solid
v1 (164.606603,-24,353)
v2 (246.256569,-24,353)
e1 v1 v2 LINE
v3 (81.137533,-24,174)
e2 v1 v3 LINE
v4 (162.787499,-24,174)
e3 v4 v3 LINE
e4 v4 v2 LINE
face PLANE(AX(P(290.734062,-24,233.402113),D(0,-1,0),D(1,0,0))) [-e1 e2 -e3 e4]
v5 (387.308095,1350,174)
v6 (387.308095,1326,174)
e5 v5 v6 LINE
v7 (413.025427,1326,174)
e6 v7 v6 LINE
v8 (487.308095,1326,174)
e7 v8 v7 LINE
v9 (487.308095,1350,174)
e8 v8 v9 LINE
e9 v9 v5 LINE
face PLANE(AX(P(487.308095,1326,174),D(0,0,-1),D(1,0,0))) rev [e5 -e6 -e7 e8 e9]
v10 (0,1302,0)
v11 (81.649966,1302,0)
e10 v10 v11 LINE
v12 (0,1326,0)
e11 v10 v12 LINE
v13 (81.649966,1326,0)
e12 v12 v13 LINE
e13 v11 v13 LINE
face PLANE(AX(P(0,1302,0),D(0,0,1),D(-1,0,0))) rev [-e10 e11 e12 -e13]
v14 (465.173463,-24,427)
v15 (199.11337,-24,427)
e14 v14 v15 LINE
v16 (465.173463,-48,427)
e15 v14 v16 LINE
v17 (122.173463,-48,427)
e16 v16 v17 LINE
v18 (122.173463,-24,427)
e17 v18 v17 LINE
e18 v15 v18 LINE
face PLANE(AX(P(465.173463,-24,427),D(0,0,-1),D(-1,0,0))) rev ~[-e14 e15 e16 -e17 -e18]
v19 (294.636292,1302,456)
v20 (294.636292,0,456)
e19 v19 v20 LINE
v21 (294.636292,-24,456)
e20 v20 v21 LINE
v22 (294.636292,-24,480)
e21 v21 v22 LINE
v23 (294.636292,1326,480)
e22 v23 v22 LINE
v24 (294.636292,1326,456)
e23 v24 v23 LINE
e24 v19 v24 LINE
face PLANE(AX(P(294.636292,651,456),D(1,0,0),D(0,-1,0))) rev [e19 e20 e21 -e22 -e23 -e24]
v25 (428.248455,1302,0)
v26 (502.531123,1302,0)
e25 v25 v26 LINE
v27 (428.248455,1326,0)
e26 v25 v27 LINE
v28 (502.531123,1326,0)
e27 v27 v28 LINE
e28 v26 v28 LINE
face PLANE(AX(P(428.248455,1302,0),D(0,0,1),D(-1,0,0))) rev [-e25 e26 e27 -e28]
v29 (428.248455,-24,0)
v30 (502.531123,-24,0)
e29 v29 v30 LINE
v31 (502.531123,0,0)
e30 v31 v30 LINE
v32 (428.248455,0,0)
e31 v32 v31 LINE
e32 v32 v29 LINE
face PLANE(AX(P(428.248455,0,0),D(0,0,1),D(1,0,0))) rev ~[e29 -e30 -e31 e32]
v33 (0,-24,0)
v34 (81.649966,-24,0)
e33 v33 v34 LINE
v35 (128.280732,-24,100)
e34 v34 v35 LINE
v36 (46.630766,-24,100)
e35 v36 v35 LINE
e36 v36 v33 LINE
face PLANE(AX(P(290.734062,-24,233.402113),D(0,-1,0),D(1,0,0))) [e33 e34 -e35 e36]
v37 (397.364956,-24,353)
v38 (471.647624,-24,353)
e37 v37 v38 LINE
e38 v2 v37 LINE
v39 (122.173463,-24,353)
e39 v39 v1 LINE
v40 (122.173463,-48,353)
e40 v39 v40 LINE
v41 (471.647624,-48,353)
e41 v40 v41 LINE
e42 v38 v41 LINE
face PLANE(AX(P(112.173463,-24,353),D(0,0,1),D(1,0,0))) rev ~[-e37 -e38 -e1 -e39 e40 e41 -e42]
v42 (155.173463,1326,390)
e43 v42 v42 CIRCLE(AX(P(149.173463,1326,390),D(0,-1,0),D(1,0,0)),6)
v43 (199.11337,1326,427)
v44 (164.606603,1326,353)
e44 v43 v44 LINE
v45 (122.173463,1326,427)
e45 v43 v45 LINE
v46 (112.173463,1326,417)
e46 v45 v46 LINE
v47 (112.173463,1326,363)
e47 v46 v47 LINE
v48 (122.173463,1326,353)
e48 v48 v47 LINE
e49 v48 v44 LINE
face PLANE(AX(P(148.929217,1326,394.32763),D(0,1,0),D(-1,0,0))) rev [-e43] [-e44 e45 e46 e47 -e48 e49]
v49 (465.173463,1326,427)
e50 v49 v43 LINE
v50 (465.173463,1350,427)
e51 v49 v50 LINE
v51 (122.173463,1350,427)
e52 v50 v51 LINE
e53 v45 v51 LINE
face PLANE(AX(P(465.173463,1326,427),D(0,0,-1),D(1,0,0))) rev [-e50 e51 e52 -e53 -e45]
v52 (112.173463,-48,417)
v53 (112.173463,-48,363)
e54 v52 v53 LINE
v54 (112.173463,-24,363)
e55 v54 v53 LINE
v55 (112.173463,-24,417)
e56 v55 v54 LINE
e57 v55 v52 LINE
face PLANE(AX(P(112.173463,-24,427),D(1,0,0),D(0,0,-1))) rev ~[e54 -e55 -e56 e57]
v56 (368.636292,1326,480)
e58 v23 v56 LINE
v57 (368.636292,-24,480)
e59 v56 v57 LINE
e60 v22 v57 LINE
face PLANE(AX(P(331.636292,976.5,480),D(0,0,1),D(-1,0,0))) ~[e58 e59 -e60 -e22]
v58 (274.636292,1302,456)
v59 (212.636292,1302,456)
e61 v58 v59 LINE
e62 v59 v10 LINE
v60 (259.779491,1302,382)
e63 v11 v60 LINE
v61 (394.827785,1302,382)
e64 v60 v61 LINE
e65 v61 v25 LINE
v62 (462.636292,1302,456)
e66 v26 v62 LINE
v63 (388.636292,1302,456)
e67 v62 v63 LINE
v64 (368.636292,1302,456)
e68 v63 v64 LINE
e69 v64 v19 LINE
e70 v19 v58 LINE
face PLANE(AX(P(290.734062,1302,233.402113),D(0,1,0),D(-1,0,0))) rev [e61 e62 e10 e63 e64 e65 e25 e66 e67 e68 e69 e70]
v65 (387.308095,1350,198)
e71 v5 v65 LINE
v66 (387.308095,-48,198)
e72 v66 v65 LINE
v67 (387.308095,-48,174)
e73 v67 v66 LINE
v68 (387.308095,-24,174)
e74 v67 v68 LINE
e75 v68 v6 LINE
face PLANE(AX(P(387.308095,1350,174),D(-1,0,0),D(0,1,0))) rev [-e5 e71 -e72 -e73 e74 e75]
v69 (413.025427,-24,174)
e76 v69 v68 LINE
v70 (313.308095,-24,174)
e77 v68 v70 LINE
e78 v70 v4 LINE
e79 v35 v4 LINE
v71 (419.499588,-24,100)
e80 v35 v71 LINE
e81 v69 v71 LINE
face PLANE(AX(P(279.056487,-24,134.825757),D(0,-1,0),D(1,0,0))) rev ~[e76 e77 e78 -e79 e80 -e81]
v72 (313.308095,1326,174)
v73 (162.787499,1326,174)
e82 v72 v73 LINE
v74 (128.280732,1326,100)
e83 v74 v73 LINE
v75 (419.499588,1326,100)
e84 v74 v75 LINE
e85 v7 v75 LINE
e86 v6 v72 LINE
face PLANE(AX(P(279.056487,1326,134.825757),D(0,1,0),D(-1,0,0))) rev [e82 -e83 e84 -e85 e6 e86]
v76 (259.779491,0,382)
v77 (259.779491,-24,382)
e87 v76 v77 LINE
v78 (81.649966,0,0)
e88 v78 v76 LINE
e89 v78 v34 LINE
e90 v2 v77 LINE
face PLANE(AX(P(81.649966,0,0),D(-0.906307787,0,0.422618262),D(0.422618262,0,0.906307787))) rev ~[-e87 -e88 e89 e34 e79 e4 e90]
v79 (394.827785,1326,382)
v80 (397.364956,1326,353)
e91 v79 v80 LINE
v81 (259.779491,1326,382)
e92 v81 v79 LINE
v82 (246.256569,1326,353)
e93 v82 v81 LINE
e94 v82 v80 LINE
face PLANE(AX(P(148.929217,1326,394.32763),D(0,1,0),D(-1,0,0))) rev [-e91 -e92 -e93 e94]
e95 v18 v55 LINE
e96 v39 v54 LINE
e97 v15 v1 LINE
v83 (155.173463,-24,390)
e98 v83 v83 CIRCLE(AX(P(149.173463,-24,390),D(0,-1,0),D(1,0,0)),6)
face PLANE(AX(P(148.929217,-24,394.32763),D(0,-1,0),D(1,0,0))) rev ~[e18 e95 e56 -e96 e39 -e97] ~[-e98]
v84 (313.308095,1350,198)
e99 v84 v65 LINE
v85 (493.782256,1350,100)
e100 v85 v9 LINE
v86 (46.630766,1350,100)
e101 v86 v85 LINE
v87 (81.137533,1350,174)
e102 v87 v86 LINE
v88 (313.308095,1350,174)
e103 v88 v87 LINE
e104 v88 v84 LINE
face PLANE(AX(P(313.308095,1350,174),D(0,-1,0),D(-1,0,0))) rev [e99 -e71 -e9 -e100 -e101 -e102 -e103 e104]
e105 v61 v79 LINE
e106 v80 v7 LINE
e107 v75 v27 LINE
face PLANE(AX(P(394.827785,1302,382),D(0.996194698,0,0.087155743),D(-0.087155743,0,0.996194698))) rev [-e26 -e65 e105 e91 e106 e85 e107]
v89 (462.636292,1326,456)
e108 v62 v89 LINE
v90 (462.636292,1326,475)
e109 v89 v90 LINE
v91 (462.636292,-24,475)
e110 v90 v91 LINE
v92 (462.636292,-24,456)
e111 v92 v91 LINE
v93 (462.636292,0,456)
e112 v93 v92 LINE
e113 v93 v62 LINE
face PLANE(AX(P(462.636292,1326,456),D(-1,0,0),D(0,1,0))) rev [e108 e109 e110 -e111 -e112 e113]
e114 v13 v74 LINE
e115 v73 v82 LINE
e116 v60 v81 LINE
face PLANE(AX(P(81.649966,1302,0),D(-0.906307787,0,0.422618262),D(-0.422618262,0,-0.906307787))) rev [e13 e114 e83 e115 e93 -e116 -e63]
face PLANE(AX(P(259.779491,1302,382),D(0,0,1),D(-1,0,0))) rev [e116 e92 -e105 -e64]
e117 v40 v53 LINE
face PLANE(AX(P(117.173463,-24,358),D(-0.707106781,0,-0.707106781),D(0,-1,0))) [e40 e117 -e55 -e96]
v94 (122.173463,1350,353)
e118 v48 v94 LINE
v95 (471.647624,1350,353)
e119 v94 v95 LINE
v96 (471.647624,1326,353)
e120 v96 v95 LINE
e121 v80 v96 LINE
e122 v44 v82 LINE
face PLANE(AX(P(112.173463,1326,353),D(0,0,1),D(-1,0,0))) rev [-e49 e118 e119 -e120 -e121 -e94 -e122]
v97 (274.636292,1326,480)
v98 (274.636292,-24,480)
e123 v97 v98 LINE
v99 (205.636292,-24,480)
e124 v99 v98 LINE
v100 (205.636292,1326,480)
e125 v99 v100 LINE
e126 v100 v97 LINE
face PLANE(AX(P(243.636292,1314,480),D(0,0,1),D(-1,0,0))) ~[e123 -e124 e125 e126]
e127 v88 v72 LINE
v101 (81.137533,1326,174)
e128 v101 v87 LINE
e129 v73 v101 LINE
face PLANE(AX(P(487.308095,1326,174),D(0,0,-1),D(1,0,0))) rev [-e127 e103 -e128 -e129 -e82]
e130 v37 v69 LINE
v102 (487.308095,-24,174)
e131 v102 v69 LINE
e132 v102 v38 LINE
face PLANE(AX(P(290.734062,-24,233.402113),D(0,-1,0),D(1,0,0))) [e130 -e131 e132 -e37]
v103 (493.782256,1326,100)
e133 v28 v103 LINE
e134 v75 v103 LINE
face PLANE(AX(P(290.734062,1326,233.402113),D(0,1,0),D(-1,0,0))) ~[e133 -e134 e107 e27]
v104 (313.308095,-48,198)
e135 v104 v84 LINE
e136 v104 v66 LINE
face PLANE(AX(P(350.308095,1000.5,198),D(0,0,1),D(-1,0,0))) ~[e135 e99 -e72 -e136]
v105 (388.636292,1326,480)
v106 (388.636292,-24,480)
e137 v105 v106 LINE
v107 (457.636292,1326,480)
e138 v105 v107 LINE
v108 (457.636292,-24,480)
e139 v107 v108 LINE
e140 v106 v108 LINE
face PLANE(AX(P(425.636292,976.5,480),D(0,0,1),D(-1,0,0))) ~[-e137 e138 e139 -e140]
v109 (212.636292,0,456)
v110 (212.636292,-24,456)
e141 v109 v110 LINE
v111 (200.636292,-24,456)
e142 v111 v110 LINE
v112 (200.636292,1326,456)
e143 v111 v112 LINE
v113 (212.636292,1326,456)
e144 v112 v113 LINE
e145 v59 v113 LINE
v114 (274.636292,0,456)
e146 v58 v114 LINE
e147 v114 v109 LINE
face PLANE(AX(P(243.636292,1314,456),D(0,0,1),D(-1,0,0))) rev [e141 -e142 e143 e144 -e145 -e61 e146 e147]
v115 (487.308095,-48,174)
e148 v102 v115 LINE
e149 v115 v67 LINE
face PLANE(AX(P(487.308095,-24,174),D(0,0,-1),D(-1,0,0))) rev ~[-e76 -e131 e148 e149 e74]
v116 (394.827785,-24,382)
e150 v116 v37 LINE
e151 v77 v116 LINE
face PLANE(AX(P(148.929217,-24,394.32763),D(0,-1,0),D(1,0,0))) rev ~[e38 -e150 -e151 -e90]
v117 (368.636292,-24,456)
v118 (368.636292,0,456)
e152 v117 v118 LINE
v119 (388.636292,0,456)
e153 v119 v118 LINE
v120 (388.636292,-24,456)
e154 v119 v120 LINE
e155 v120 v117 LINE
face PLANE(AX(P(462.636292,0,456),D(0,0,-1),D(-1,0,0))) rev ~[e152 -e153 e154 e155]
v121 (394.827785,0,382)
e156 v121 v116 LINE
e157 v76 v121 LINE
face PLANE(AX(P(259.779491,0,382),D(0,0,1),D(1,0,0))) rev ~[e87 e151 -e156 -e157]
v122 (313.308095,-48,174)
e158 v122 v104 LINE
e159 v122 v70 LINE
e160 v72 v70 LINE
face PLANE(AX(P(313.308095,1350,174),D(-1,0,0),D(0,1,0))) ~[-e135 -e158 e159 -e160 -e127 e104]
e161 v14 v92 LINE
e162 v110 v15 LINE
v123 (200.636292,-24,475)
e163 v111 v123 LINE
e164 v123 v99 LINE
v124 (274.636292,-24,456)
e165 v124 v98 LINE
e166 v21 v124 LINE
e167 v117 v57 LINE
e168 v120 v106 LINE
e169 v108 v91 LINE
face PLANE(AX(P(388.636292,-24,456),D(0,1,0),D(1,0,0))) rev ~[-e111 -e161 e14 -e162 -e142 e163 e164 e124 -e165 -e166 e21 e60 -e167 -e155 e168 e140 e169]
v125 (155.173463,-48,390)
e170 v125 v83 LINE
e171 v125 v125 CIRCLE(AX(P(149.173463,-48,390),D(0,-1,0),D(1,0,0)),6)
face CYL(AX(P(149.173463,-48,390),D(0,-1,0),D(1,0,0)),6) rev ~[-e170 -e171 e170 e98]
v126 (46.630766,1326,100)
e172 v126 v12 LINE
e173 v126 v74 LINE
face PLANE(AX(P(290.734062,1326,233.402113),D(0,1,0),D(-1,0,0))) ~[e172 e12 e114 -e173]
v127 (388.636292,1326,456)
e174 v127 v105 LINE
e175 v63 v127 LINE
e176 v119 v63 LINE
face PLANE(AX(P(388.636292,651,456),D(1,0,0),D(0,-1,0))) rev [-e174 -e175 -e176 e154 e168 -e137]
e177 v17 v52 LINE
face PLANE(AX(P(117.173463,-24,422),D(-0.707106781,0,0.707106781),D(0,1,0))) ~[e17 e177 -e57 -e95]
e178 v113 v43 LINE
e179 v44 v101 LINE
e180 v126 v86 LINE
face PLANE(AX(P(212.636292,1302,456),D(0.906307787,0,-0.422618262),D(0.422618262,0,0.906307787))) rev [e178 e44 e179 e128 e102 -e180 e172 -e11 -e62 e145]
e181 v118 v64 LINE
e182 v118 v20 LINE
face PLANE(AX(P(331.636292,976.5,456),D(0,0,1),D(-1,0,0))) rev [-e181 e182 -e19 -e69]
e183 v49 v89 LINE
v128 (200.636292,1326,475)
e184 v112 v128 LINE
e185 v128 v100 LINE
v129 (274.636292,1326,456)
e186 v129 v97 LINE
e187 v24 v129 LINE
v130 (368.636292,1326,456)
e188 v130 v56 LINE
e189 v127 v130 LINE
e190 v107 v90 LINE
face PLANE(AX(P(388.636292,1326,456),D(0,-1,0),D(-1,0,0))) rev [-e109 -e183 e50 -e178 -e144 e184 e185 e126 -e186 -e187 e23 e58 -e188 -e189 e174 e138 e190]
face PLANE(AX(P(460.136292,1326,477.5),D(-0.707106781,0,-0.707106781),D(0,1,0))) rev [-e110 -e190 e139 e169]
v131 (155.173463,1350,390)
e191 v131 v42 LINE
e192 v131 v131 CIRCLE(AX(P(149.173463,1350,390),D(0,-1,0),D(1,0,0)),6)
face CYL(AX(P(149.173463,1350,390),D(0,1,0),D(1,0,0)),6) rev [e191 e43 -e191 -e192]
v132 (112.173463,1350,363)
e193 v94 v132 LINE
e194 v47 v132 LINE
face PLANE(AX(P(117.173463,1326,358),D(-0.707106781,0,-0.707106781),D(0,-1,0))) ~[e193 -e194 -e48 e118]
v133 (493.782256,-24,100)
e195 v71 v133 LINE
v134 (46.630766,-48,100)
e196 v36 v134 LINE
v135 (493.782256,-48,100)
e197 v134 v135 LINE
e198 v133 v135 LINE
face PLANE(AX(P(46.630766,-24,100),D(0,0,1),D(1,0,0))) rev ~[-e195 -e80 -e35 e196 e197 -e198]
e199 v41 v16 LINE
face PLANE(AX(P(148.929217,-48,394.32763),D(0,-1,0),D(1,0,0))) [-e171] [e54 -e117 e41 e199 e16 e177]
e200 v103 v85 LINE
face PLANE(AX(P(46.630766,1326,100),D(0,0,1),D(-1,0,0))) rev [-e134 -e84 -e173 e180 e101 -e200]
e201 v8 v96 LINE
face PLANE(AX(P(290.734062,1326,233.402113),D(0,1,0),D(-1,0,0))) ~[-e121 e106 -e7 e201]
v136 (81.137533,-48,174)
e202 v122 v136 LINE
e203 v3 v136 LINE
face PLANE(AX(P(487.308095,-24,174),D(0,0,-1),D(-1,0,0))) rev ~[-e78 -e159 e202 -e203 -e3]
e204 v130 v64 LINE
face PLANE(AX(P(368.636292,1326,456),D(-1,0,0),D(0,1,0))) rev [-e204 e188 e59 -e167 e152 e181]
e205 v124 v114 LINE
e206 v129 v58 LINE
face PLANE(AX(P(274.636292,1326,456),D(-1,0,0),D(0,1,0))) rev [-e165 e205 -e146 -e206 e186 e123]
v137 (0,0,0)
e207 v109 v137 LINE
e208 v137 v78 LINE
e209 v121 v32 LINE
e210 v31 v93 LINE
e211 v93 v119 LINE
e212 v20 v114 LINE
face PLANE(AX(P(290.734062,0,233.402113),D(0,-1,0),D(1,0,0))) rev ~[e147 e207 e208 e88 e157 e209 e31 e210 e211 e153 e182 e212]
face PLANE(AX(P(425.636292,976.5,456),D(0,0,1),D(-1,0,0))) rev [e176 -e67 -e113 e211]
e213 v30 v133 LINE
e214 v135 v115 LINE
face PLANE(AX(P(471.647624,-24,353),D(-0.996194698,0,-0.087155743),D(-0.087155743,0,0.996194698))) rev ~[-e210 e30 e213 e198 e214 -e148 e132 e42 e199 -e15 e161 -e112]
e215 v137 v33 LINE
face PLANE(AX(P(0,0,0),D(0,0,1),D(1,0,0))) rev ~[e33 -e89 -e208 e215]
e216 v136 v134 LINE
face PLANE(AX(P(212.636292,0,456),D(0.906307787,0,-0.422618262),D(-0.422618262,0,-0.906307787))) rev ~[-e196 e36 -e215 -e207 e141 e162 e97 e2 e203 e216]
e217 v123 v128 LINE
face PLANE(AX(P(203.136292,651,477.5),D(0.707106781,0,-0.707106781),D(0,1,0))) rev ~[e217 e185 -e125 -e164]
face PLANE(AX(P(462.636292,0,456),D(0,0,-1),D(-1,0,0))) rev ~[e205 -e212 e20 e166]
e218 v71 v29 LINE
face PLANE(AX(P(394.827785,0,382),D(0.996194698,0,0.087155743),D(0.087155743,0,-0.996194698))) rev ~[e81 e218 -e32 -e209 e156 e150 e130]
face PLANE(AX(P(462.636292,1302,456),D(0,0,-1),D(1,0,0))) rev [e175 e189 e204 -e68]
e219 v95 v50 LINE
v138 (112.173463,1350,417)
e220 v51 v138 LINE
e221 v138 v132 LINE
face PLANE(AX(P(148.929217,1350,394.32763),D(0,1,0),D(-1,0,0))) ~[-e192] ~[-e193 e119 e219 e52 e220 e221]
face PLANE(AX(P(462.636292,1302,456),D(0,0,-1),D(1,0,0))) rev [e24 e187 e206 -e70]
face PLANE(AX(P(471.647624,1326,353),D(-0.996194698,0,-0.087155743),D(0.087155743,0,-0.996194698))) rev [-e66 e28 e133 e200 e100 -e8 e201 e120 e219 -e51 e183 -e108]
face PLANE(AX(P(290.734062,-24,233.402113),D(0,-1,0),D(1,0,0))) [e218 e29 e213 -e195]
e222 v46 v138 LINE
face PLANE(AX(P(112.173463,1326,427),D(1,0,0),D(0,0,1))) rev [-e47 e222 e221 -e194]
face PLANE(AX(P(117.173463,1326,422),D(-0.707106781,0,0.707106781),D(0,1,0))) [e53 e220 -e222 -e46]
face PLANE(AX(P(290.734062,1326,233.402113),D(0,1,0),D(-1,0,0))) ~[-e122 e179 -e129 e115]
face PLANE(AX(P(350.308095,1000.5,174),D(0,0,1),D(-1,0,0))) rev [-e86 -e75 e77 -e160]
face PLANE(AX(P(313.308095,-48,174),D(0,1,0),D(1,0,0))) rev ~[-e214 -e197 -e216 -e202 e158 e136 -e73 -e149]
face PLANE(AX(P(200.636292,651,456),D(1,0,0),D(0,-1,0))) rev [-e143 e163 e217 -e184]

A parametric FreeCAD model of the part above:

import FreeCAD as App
import Part
import Sketcher
from FreeCAD import Vector
Q = App.Units.Quantity


def edges_at(feature, points):
    """Names of the edges that pass closest to the given points."""
    edges = feature.Shape.Edges
    near = lambda p: min(range(len(edges)), key=lambda i: edges[i].distToShape(Part.Vertex(*p))[0])
    return sorted({f"Edge{near(p) + 1}" for p in points})


def add_polygon(sketch, points):
    """Adds a closed chain of lines whose ends are joined by coincident constraints."""
    first, n = sketch.GeometryCount, len(points)
    for a, b in zip(points, points[1:] + points[:1]):
        sketch.addGeometry(Part.LineSegment(App.Vector(*a, 0), App.Vector(*b, 0)), False)
    for i in range(n):
        sketch.addConstraint(Sketcher.Constraint("Coincident", first + i, 2, first + (i + 1) % n, 1))

doc = App.newDocument("Part")
body = doc.addObject("PartDesign::Body", "Body")

sketch1 = doc.addObject("Sketcher::SketchObject", "Sketch")
body.addObject(sketch1)
sketch1.AttachmentSupport = (doc.XZ_Plane, [""])
sketch1.MapMode = "FlatFace"
add_polygon(sketch1, [(213, 456), (0, 0), (82, 0), (260, 382), (395, 382), (428, 0), (503, 0), (463, 456)])
sketch1.addConstraint(Sketcher.Constraint("Horizontal", 1))
sketch1.addConstraint(Sketcher.Constraint("Horizontal", 3))
sketch1.addConstraint(Sketcher.Constraint("Horizontal", 5))
sketch1.addConstraint(Sketcher.Constraint("Horizontal", 7))
sketch1.addConstraint(Sketcher.Constraint("Coincident", 0, 2, -1, 1))
sketch1.addConstraint(Sketcher.Constraint("PointOnObject", 4, 2, -1))
sketch1.addConstraint(Sketcher.Constraint("Parallel", 0, 2))
sketch1.addConstraint(Sketcher.Constraint("Parallel", 4, 6))
sketch1.addConstraint(Sketcher.Constraint("DistanceX", 7, 2, 7, 1, Q("250 mm")))
sketch1.addConstraint(Sketcher.Constraint("Angle", 0, Q("-115 deg")))
sketch1.addConstraint(Sketcher.Constraint("Angle", 4, Q("-85 deg")))
sketch1.addConstraint(Sketcher.Constraint("DistanceY", -1, 1, 2, 2, Q("382 mm")))
sketch1.addConstraint(Sketcher.Constraint("DistanceY", -1, 1, 6, 2, Q("456 mm")))
sketch1.addConstraint(Sketcher.Constraint("DistanceX", 2, 2, 6, 2, Q("202.856801 mm")))
sketch1.addConstraint(Sketcher.Constraint("DistanceX", 3, 1, 3, 2, Q("135.048294 mm")))
pad1 = doc.addObject("PartDesign::Pad", "Pad")
body.addObject(pad1)
pad1.Profile = sketch1
pad1.Length = 24

sketch2 = doc.addObject("Sketcher::SketchObject", "Sketch001")
body.addObject(sketch2)
sketch2.AttachmentSupport = (doc.XZ_Plane, [""])
sketch2.MapMode = "FlatFace"
sketch2.AttachmentOffset = App.Placement(Vector(0, 0, 24), App.Rotation())
add_polygon(sketch2, [(112, 427), (112, 353), (472, 353), (465, 427)])
add_polygon(sketch2, [(81, 174), (47, 100), (494, 100), (487, 174)])
sketch2.addConstraint(Sketcher.Constraint("Vertical", 0))
sketch2.addConstraint(Sketcher.Constraint("Horizontal", 1))
sketch2.addConstraint(Sketcher.Constraint("Horizontal", 3))
sketch2.addConstraint(Sketcher.Constraint("Horizontal", 5))
sketch2.addConstraint(Sketcher.Constraint("Horizontal", 7))
sketch2.addConstraint(Sketcher.Constraint("Parallel", 2, 6))
sketch2.addConstraint(Sketcher.Constraint("Equal", 2, 6))
sketch2.addConstraint(Sketcher.Constraint("DistanceX", 3, 2, 3, 1, Q("353 mm")))
sketch2.addConstraint(Sketcher.Constraint("DistanceY", 0, 2, 0, 1, Q("74 mm")))
sketch2.addConstraint(Sketcher.Constraint("Angle", 2, Q("95 deg")))
sketch2.addConstraint(Sketcher.Constraint("Angle", 4, Q("-115 deg")))
sketch2.addConstraint(Sketcher.Constraint("DistanceY", -1, 1, 0, 2, Q("353 mm")))
sketch2.addConstraint(Sketcher.Constraint("DistanceY", -1, 1, 4, 2, Q("100 mm")))
sketch2.addConstraint(Sketcher.Constraint("DistanceX", 5, 1, 5, 2, Q("447.151491 mm")))
sketch2.addConstraint(Sketcher.Constraint("DistanceX", 4, 2, 1, 2, Q("425.016859 mm")))
sketch2.addConstraint(Sketcher.Constraint("DistanceX", -1, 1, 0, 2, Q("112.173463 mm")))
pad2 = doc.addObject("PartDesign::Pad", "Pad001")
body.addObject(pad2)
pad2.Profile = sketch2
pad2.Length = 24

sketch3 = doc.addObject("Sketcher::SketchObject", "Sketch002")
body.addObject(sketch3)
sketch3.AttachmentSupport = (doc.XY_Plane, [""])
sketch3.MapMode = "FlatFace"
sketch3.AttachmentOffset = App.Placement(Vector(0, 0, 174), App.Rotation())
add_polygon(sketch3, [(313, 651), (313, -48), (387, -48), (387, 651)])
sketch3.addConstraint(Sketcher.Constraint("Vertical", 0))
sketch3.addConstraint(Sketcher.Constraint("Horizontal", 1))
sketch3.addConstraint(Sketcher.Constraint("Vertical", 2))
sketch3.addConstraint(Sketcher.Constraint("Horizontal", 3))
sketch3.addConstraint(Sketcher.Constraint("DistanceX", 1, 1, 1, 2, Q("74 mm")))
sketch3.addConstraint(Sketcher.Constraint("DistanceY", 0, 2, 0, 1, Q("699 mm")))
sketch3.addConstraint(Sketcher.Constraint("DistanceY", 0, 2, -1, 1, Q("48 mm")))
sketch3.addConstraint(Sketcher.Constraint("DistanceX", -1, 1, 0, 2, Q("313.308095 mm")))
pad3 = doc.addObject("PartDesign::Pad", "Pad002")
body.addObject(pad3)
pad3.Profile = sketch3
pad3.Length = 24

sketch4 = doc.addObject("Sketcher::SketchObject", "Sketch003")
body.addObject(sketch4)
sketch4.AttachmentSupport = (doc.XZ_Plane, [""])
sketch4.MapMode = "FlatFace"
sketch4.AttachmentOffset = App.Placement(Vector(0, 0, 48), App.Rotation())
sketch4.addGeometry(Part.Circle(Vector(149, 390, 0), Vector(0, 0, 1), 6), False)
sketch4.addConstraint(Sketcher.Constraint("Diameter", 0, Q("12 mm")))
sketch4.addConstraint(Sketcher.Constraint("DistanceY", -1, 1, 0, 3, Q("390 mm")))
sketch4.addConstraint(Sketcher.Constraint("DistanceX", -1, 1, 0, 3, Q("149.173463 mm")))
pocket1 = doc.addObject("PartDesign::Pocket", "Pocket")
body.addObject(pocket1)
pocket1.Profile = sketch4
pocket1.Type = "ThroughAll"
doc.recompute()

chamfer = doc.addObject("PartDesign::Chamfer", "Chamfer")
body.addObject(chamfer)
chamfer.Base = (pocket1, edges_at(pocket1, [(112.173, -36, 427), (112.173, -36, 353)]))
chamfer.Size = 10

sketch5 = doc.addObject("Sketcher::SketchObject", "Sketch004")
body.addObject(sketch5)
sketch5.AttachmentSupport = (doc.XY_Plane, [""])
sketch5.MapMode = "FlatFace"
sketch5.AttachmentOffset = App.Placement(Vector(0, 0, 456), App.Rotation())
add_polygon(sketch5, [(389, 651), (389, -24), (463, -24), (463, 651)])
add_polygon(sketch5, [(295, 651), (295, -24), (369, -24), (369, 651)])
add_polygon(sketch5, [(275, -24), (275, 651), (201, 651), (201, -24)])
sketch5.addConstraint(Sketcher.Constraint("Vertical", 0))
sketch5.addConstraint(Sketcher.Constraint("Horizontal", 1))
sketch5.addConstraint(Sketcher.Constraint("Vertical", 2))
sketch5.addConstraint(Sketcher.Constraint("Horizontal", 3))
sketch5.addConstraint(Sketcher.Constraint("Vertical", 4))
sketch5.addConstraint(Sketcher.Constraint("Horizontal", 5))
sketch5.addConstraint(Sketcher.Constraint("Vertical", 6))
sketch5.addConstraint(Sketcher.Constraint("Horizontal", 7))
sketch5.addConstraint(Sketcher.Constraint("Vertical", 8))
sketch5.addConstraint(Sketcher.Constraint("Horizontal", 9))
sketch5.addConstraint(Sketcher.Constraint("Vertical", 10))
sketch5.addConstraint(Sketcher.Constraint("Horizontal", 11))
sketch5.addConstraint(Sketcher.Constraint("Horizontal", 1, 2, 4, 2))
sketch5.addConstraint(Sketcher.Constraint("Horizontal", 3, 2, 6, 2))
sketch5.addConstraint(Sketcher.Constraint("Horizontal", 7, 2, 8, 2))
sketch5.addConstraint(Sketcher.Constraint("Horizontal", 5, 2, 10, 2))
sketch5.addConstraint(Sketcher.Constraint("Equal", 3, 5))
sketch5.addConstraint(Sketcher.Constraint("Equal", 7, 9))
sketch5.addConstraint(Sketcher.Constraint("DistanceX", 1, 1, 1, 2, Q("74 mm")))
sketch5.addConstraint(Sketcher.Constraint("DistanceY", 0, 2, 0, 1, Q("675 mm")))
sketch5.addConstraint(Sketcher.Constraint("DistanceY", 0, 2, -1, 1, Q("24 mm")))
sketch5.addConstraint(Sketcher.Constraint("DistanceX", 4, 2, 0, 2, Q("94 mm")))
sketch5.addConstraint(Sketcher.Constraint("DistanceX", 8, 2, 7, 2, Q("20 mm")))
sketch5.addConstraint(Sketcher.Constraint("DistanceX", -1, 1, 0, 2, Q("388.636292 mm")))
pad4 = doc.addObject("PartDesign::Pad", "Pad003")
body.addObject(pad4)
pad4.Profile = sketch5
pad4.Length = 24
doc.recompute()

chamfer2 = doc.addObject("PartDesign::Chamfer", "Chamfer001")
body.addObject(chamfer2)
chamfer2.Base = (pad4, edges_at(pad4, [(200.636, 313.5, 480), (462.636, 313.5, 480)]))
chamfer2.Size = 5
body2 = doc.addObject("PartDesign::Body", "Body001")
doc.recompute()

body2.BaseFeature = body
doc.recompute()

mirroring = doc.addObject("Part::Mirroring", "Mirroring")
mirroring.Source = body
mirroring.Base = Vector(350.308095, 651, 186)
mirroring.Normal = Vector(0, 1, 0)
body3 = doc.addObject("PartDesign::Body", "Body002")
body3.BaseFeature = mirroring
boolean = doc.addObject("PartDesign::Boolean", "Boolean")
body2.addObject(boolean)
boolean.Type = "Fuse"
boolean.addObjects([body3])
doc.recompute()
mirroring.Visibility = False

doc.recompute()
